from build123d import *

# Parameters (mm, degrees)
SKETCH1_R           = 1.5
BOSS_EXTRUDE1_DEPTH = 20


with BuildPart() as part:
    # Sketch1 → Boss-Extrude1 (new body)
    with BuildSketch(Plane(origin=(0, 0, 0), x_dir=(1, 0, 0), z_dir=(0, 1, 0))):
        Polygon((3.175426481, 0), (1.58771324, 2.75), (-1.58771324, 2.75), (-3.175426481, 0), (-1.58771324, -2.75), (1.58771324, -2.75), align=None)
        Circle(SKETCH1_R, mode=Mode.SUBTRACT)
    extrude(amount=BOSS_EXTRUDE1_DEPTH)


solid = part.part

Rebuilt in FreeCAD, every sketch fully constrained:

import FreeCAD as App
import Part
import Sketcher

V = App.Vector
Q = App.Units.Quantity


def add_polygon(sketch, points):
    """Adds a closed chain of lines whose ends are joined by coincident constraints."""
    first, n = sketch.GeometryCount, len(points)
    for a, b in zip(points, points[1:] + points[:1]):
        sketch.addGeometry(Part.LineSegment(App.Vector(*a, 0), App.Vector(*b, 0)), False)
    for i in range(n):
        sketch.addConstraint(Sketcher.Constraint("Coincident", first + i, 2, first + (i + 1) % n, 1))

doc = App.newDocument("Part")
body = doc.addObject("PartDesign::Body", "Body")

# Sketch on XZ plane
sketch1 = doc.addObject("Sketcher::SketchObject", "Sketch")
body.addObject(sketch1)
sketch1.AttachmentSupport = (doc.XZ_Plane, [""])
sketch1.MapMode = "FlatFace"
add_polygon(sketch1, [(3.2, 0), (1.6, -2.8), (-1.6, -2.8), (-3.2, 0), (-1.6, 2.8), (1.6, 2.8)])  # lines 0-5
sketch1.addGeometry(Part.Circle(V(0, 0, 0), V(0, 0, 1), 1.5), False)  # 6
sketch1.addConstraint([
    Sketcher.Constraint("Horizontal", 1),
    Sketcher.Constraint("Horizontal", 4),
    Sketcher.Constraint("Coincident", 6, 3, -1, 1),
    Sketcher.Constraint("Symmetric", 0, 2, 3, 2, -1, 1),
    Sketcher.Constraint("Symmetric", 2, 2, 5, 2, -1, 1),
    Sketcher.Constraint("PointOnObject", 2, 2, -1),
    Sketcher.Constraint("Parallel", 2, 5),
    Sketcher.Constraint("Vertical", 1, 2, 3, 2),
    Sketcher.Constraint("Diameter", 6, Q("3 mm")),
    Sketcher.Constraint("Angle", 0, Q("-120 deg")),
    Sketcher.Constraint("DistanceY", 1, 2, 3, 2, Q("5.5 mm")),
    Sketcher.Constraint("DistanceX", 1, 2, 1, 1, Q("3.175426 mm")),
])
pad1 = doc.addObject("PartDesign::Pad", "Pad")
body.addObject(pad1)
pad1.Profile = sketch1
pad1.Length = 20
pad1.Reversed = True

doc.recompute()
